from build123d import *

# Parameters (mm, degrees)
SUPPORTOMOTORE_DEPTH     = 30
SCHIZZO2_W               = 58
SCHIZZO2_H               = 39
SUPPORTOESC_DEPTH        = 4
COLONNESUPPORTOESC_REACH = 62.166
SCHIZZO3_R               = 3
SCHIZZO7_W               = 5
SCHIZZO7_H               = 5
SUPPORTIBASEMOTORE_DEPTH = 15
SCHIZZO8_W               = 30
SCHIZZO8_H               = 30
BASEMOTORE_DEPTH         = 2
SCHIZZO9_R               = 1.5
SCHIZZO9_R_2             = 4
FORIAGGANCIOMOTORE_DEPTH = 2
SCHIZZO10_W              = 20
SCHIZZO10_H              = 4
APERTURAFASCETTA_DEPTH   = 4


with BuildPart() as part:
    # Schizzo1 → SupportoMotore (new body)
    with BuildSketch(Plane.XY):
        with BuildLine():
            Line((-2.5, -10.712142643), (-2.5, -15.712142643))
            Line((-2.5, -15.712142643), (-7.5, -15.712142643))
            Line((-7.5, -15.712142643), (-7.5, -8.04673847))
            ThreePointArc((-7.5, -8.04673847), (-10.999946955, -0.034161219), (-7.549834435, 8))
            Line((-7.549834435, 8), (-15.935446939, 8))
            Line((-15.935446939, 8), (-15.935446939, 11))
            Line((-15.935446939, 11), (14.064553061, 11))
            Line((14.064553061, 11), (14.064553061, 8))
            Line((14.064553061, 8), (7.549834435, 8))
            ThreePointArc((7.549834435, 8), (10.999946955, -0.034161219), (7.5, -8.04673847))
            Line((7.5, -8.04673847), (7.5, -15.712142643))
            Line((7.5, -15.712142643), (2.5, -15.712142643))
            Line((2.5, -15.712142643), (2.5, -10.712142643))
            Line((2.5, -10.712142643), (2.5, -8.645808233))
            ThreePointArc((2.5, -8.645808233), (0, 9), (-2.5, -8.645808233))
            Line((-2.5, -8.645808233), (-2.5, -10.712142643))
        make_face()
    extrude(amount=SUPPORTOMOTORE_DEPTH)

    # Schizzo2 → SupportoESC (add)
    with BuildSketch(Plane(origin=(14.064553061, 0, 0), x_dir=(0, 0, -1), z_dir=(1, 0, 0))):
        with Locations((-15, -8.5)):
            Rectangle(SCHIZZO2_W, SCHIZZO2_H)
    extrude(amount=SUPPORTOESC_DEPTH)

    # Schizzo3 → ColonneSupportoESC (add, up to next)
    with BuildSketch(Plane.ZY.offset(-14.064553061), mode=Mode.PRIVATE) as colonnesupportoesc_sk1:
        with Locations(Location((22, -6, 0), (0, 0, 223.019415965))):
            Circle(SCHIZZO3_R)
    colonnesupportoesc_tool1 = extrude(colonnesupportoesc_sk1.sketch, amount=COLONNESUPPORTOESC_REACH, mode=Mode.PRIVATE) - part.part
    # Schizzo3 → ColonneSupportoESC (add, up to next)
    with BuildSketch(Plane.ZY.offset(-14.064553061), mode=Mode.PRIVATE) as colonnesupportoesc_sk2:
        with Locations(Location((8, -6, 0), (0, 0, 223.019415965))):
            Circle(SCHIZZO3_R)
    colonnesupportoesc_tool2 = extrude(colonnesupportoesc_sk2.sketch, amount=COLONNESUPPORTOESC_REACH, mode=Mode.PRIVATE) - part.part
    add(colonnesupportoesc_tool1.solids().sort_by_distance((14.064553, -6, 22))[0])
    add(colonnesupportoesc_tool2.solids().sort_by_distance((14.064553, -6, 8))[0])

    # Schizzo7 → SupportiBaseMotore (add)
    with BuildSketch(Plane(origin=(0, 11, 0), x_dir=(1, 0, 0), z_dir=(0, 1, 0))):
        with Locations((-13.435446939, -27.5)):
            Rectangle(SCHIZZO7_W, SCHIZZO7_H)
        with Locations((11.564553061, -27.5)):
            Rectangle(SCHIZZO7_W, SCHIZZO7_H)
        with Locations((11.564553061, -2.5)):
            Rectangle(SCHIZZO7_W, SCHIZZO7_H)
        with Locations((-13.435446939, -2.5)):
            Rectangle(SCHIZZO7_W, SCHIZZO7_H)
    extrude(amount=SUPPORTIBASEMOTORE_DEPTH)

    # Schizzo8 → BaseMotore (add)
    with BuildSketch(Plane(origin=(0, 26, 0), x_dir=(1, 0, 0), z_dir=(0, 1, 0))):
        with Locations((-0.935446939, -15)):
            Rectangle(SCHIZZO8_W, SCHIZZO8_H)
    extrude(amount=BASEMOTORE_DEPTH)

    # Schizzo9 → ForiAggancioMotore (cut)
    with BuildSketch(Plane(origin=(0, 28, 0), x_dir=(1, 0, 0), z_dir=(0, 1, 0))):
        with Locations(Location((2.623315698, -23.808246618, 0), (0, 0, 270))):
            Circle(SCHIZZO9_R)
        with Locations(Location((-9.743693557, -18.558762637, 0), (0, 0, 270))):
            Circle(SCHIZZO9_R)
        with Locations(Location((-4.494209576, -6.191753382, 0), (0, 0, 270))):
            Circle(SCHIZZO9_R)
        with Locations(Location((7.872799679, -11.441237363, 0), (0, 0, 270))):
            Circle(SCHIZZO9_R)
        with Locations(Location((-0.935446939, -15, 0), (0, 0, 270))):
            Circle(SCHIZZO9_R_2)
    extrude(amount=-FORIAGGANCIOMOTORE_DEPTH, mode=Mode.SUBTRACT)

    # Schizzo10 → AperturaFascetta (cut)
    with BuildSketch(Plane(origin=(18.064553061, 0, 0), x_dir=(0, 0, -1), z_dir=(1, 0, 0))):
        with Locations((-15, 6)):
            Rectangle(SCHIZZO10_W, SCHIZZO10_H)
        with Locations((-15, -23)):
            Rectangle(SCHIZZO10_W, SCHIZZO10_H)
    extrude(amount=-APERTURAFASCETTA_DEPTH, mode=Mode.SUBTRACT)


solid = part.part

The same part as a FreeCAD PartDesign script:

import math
import FreeCAD as App
import Part
import Sketcher

V = App.Vector

doc = App.newDocument("Part")
params = doc.addObject("Spreadsheet::Sheet", "Params")
for row, (alias, value) in enumerate([
    ("sketch1_radius", "9 mm"),
    ("sketch1_radius2", "11 mm"),
    ("sketch1_width", "5 mm"),
    ("sketch1_width2", "30 mm"),
    ("sketch1_height", "3 mm"),
    ("pad1_length", "30 mm"),
    ("sketch2_width", "39 mm"),
    ("sketch2_height", "58 mm"),
    ("pad2_length", "4 mm"),
    ("sketch3_diameter", "6 mm"),
    ("sketch4_diameter", "6 mm"),
    ("sketch5_width", "5 mm"),
    ("pad5_length", "15 mm"),
    ("sketch6_width", "30 mm"),
    ("pad6_length", "2 mm"),
    ("sketch7_diameter", "3 mm"),
    ("sketch7_diameter2", "8 mm"),
    ("pocket1_length", "2 mm"),
    ("sketch8_width", "4 mm"),
    ("sketch8_height", "20 mm"),
    ("pocket2_length", "4 mm"),
], start=1):
    params.set(f"A{row}", alias)
    params.set(f"B{row}", "=" + value)
    params.setAlias(f"B{row}", alias)

body = doc.addObject("PartDesign::Body", "Body")

sketch1 = doc.addObject("Sketcher::SketchObject", "Sketch")
body.addObject(sketch1)
sketch1.AttachmentSupport = (doc.XY_Plane, [""])
sketch1.MapMode = "FlatFace"
sketch1.addGeometry([
    Part.LineSegment(V(-7.5, -15.7, 0), V(-2.5, -15.7, 0)),
    Part.LineSegment(V(-2.5, -15.7, 0), V(-2.5, -8.6, 0)),
    Part.ArcOfCircle(Part.Circle(V(0, 0, 0), V(0, 0, 1), 9), math.radians(-74), math.radians(254)),
    Part.LineSegment(V(2.5, -8.6, 0), V(2.5, -15.7, 0)),
    Part.LineSegment(V(2.5, -15.7, 0), V(7.5, -15.7, 0)),
    Part.LineSegment(V(7.5, -15.7, 0), V(7.5, -8, 0)),
    Part.ArcOfCircle(Part.Circle(V(0, 0, 0), V(0, 0, 1), 11), math.radians(-47), math.radians(47)),
    Part.LineSegment(V(7.5, 8, 0), V(14.1, 8, 0)),
    Part.LineSegment(V(14.1, 8, 0), V(14.1, 11, 0)),
    Part.LineSegment(V(14.1, 11, 0), V(-15.9, 11, 0)),
    Part.LineSegment(V(-15.9, 11, 0), V(-15.9, 8, 0)),
    Part.LineSegment(V(-15.9, 8, 0), V(-7.5, 8, 0)),
    Part.ArcOfCircle(Part.Circle(V(0, 0, 0), V(0, 0, 1), 11), math.radians(133), math.radians(227)),
    Part.LineSegment(V(-7.5, -8, 0), V(-7.5, -15.7, 0)),
], False)
sketch1.addConstraint([
    Sketcher.Constraint("Coincident", 0, 2, 1, 1),
    Sketcher.Constraint("Coincident", 1, 2, 2, 2),
    Sketcher.Constraint("Coincident", 2, 1, 3, 1),
    Sketcher.Constraint("Coincident", 3, 2, 4, 1),
    Sketcher.Constraint("Coincident", 4, 2, 5, 1),
    Sketcher.Constraint("Coincident", 5, 2, 6, 1),
    Sketcher.Constraint("Coincident", 6, 2, 7, 1),
    Sketcher.Constraint("Coincident", 7, 2, 8, 1),
    Sketcher.Constraint("Coincident", 8, 2, 9, 1),
    Sketcher.Constraint("Coincident", 9, 2, 10, 1),
    Sketcher.Constraint("Coincident", 10, 2, 11, 1),
    Sketcher.Constraint("Coincident", 11, 2, 12, 1),
    Sketcher.Constraint("Coincident", 12, 2, 13, 1),
    Sketcher.Constraint("Coincident", 13, 2, 0, 1),
    Sketcher.Constraint("Horizontal", 0),
    Sketcher.Constraint("Vertical", 1),
    Sketcher.Constraint("Vertical", 3),
    Sketcher.Constraint("Horizontal", 4),
    Sketcher.Constraint("Vertical", 5),
    Sketcher.Constraint("Horizontal", 7),
    Sketcher.Constraint("Vertical", 8),
    Sketcher.Constraint("Horizontal", 9),
    Sketcher.Constraint("Vertical", 10),
    Sketcher.Constraint("Horizontal", 11),
    Sketcher.Constraint("Vertical", 13),
    Sketcher.Constraint("Coincident", 2, 3, -1, 1),
    Sketcher.Constraint("Coincident", 6, 3, -1, 1),
    Sketcher.Constraint("Coincident", 12, 3, -1, 1),
    Sketcher.Constraint("Equal", 6, 12),
    Sketcher.Constraint("Symmetric", 0, 2, 3, 2, -2),
    Sketcher.Constraint("Horizontal", 7, 2, 10, 2),
    Sketcher.Constraint("Horizontal", 5, 2, 12, 2),
    Sketcher.Constraint("Radius", 2, 9.0),
    Sketcher.Constraint("Radius", 6, 11.0),
    Sketcher.Constraint("DistanceX", 0, 1, 0, 2, 5.0),
    Sketcher.Constraint("DistanceX", 9, 2, 9, 1, 30.0),
    Sketcher.Constraint("DistanceY", 8, 1, 8, 2, 3.0),
    Sketcher.Constraint("DistanceY", -1, 1, 6, 2, 8.0),
    Sketcher.Constraint("DistanceX", 1, 2, 2, 1, 5.0),
    Sketcher.Constraint("DistanceX", 7, 1, 7, 2, 6.514719),
    Sketcher.Constraint("DistanceY", 1, 1, 1, 2, 7.066334),
])
sketch1.setExpression("Constraints[32]", "Params.sketch1_radius")
sketch1.setExpression("Constraints[33]", "Params.sketch1_radius2")
sketch1.setExpression("Constraints[34]", "Params.sketch1_width")
sketch1.setExpression("Constraints[35]", "Params.sketch1_width2")
sketch1.setExpression("Constraints[36]", "Params.sketch1_height")
pad1 = doc.addObject("PartDesign::Pad", "Pad")
body.addObject(pad1)
pad1.Profile = sketch1
pad1.setExpression("Length", "Params.pad1_length")

sketch2 = doc.addObject("Sketcher::SketchObject", "Sketch001")
body.addObject(sketch2)
sketch2.AttachmentSupport = (doc.YZ_Plane, [""])
sketch2.MapMode = "FlatFace"
sketch2.AttachmentOffset = App.Placement(V(0, 0, 14.064553), App.Rotation())
sketch2.addGeometry([
    Part.LineSegment(V(11, 44, 0), V(-28, 44, 0)),
    Part.LineSegment(V(-28, 44, 0), V(-28, -14, 0)),
    Part.LineSegment(V(-28, -14, 0), V(11, -14, 0)),
    Part.LineSegment(V(11, -14, 0), V(11, 44, 0)),
], False)
sketch2.addConstraint([
    Sketcher.Constraint("Coincident", 0, 2, 1, 1),
    Sketcher.Constraint("Coincident", 1, 2, 2, 1),
    Sketcher.Constraint("Coincident", 2, 2, 3, 1),
    Sketcher.Constraint("Coincident", 3, 2, 0, 1),
    Sketcher.Constraint("Horizontal", 0),
    Sketcher.Constraint("Vertical", 1),
    Sketcher.Constraint("Horizontal", 2),
    Sketcher.Constraint("Vertical", 3),
    Sketcher.Constraint("DistanceX", 0, 2, 0, 1, 39.0),
    Sketcher.Constraint("DistanceY", 1, 2, 1, 1, 58.0),
    Sketcher.Constraint("DistanceX", 0, 2, -1, 1, 28.0),
    Sketcher.Constraint("DistanceY", -1, 1, 0, 2, 44.0),
])
sketch2.setExpression("Constraints[8]", "Params.sketch2_width")
sketch2.setExpression("Constraints[9]", "Params.sketch2_height")
pad2 = doc.addObject("PartDesign::Pad", "Pad001")
body.addObject(pad2)
pad2.Profile = sketch2
pad2.setExpression("Length", "Params.pad2_length")

sketch3 = doc.addObject("Sketcher::SketchObject", "Sketch002")
body.addObject(sketch3)
sketch3.AttachmentSupport = (doc.YZ_Plane, [""])
sketch3.MapMode = "FlatFace"
sketch3.AttachmentOffset = App.Placement(V(0, 0, 14.064553), App.Rotation())
sketch3.addGeometry(Part.Circle(V(-6, 22, 0), V(0, 0, 1), 3), False)
sketch3.addConstraint([
    Sketcher.Constraint("Diameter", 0, 6.0),
    Sketcher.Constraint("DistanceX", 0, 3, -1, 1, 6.0),
    Sketcher.Constraint("DistanceY", -1, 1, 0, 3, 22.0),
])
sketch3.setExpression("Constraints[0]", "Params.sketch3_diameter")
pad3 = doc.addObject("PartDesign::Pad", "Pad002")
body.addObject(pad3)
pad3.Profile = sketch3
pad3.Type = "UpToFirst"
pad3.Reversed = True

sketch4 = doc.addObject("Sketcher::SketchObject", "Sketch003")
body.addObject(sketch4)
sketch4.AttachmentSupport = (doc.YZ_Plane, [""])
sketch4.MapMode = "FlatFace"
sketch4.AttachmentOffset = App.Placement(V(0, 0, 14.064553), App.Rotation())
sketch4.addGeometry(Part.Circle(V(-6, 8, 0), V(0, 0, 1), 3), False)
sketch4.addConstraint([
    Sketcher.Constraint("Diameter", 0, 6.0),
    Sketcher.Constraint("DistanceX", 0, 3, -1, 1, 6.0),
    Sketcher.Constraint("DistanceY", -1, 1, 0, 3, 8.0),
])
sketch4.setExpression("Constraints[0]", "Params.sketch4_diameter")
pad4 = doc.addObject("PartDesign::Pad", "Pad003")
body.addObject(pad4)
pad4.Profile = sketch4
pad4.Type = "UpToFirst"
pad4.Reversed = True

sketch5 = doc.addObject("Sketcher::SketchObject", "Sketch004")
body.addObject(sketch5)
sketch5.AttachmentSupport = (doc.XZ_Plane, [""])
sketch5.MapMode = "FlatFace"
sketch5.AttachmentOffset = App.Placement(V(0, 0, -11), App.Rotation())
sketch5.addGeometry([
    Part.LineSegment(V(-16, 25, 0), V(-16, 30, 0)),
    Part.LineSegment(V(-16, 30, 0), V(-11, 30, 0)),
    Part.LineSegment(V(-11, 30, 0), V(-11, 25, 0)),
    Part.LineSegment(V(-11, 25, 0), V(-16, 25, 0)),
    Part.LineSegment(V(9, 25, 0), V(9, 30, 0)),
    Part.LineSegment(V(9, 30, 0), V(14, 30, 0)),
    Part.LineSegment(V(14, 30, 0), V(14, 25, 0)),
    Part.LineSegment(V(14, 25, 0), V(9, 25, 0)),
    Part.LineSegment(V(9, 0, 0), V(9, 5, 0)),
    Part.LineSegment(V(9, 5, 0), V(14, 5, 0)),
    Part.LineSegment(V(14, 5, 0), V(14, 0, 0)),
    Part.LineSegment(V(14, 0, 0), V(9, 0, 0)),
    Part.LineSegment(V(-16, 0, 0), V(-16, 5, 0)),
    Part.LineSegment(V(-16, 5, 0), V(-11, 5, 0)),
    Part.LineSegment(V(-11, 5, 0), V(-11, 0, 0)),
    Part.LineSegment(V(-11, 0, 0), V(-16, 0, 0)),
], False)
sketch5.addConstraint([
    Sketcher.Constraint("Coincident", 0, 2, 1, 1),
    Sketcher.Constraint("Coincident", 1, 2, 2, 1),
    Sketcher.Constraint("Coincident", 2, 2, 3, 1),
    Sketcher.Constraint("Coincident", 3, 2, 0, 1),
    Sketcher.Constraint("Coincident", 4, 2, 5, 1),
    Sketcher.Constraint("Coincident", 5, 2, 6, 1),
    Sketcher.Constraint("Coincident", 6, 2, 7, 1),
    Sketcher.Constraint("Coincident", 7, 2, 4, 1),
    Sketcher.Constraint("Coincident", 8, 2, 9, 1),
    Sketcher.Constraint("Coincident", 9, 2, 10, 1),
    Sketcher.Constraint("Coincident", 10, 2, 11, 1),
    Sketcher.Constraint("Coincident", 11, 2, 8, 1),
    Sketcher.Constraint("Coincident", 12, 2, 13, 1),
    Sketcher.Constraint("Coincident", 13, 2, 14, 1),
    Sketcher.Constraint("Coincident", 14, 2, 15, 1),
    Sketcher.Constraint("Coincident", 15, 2, 12, 1),
    Sketcher.Constraint("Vertical", 0),
    Sketcher.Constraint("Horizontal", 1),
    Sketcher.Constraint("Vertical", 2),
    Sketcher.Constraint("Horizontal", 3),
    Sketcher.Constraint("Vertical", 4),
    Sketcher.Constraint("Horizontal", 5),
    Sketcher.Constraint("Vertical", 6),
    Sketcher.Constraint("Horizontal", 7),
    Sketcher.Constraint("Vertical", 8),
    Sketcher.Constraint("Horizontal", 9),
    Sketcher.Constraint("Vertical", 10),
    Sketcher.Constraint("Horizontal", 11),
    Sketcher.Constraint("Vertical", 12),
    Sketcher.Constraint("Horizontal", 13),
    Sketcher.Constraint("Vertical", 14),
    Sketcher.Constraint("Horizontal", 15),
    Sketcher.Constraint("PointOnObject", 10, 2, -1),
    Sketcher.Constraint("PointOnObject", 14, 2, -1),
    Sketcher.Constraint("Horizontal", 1, 2, 4, 2),
    Sketcher.Constraint("Horizontal", 3, 2, 6, 2),
    Sketcher.Constraint("Horizontal", 9, 2, 12, 2),
    Sketcher.Constraint("Vertical", 7, 2, 8, 2),
    Sketcher.Constraint("Vertical", 6, 2, 9, 2),
    Sketcher.Constraint("Vertical", 3, 2, 12, 2),
    Sketcher.Constraint("Vertical", 2, 2, 13, 2),
    Sketcher.Constraint("Equal", 3, 5),
    Sketcher.Constraint("Equal", 15, 0),
    Sketcher.Constraint("Equal", 6, 8),
    Sketcher.Constraint("DistanceX", 1, 1, 1, 2, 5.0),
    Sketcher.Constraint("DistanceY", -1, 1, 0, 2, 30.0),
    Sketcher.Constraint("DistanceX", 1, 2, 4, 2, 20.0),
    Sketcher.Constraint("DistanceX", 0, 2, -1, 1, 15.935447),
])
sketch5.setExpression("Constraints[44]", "Params.sketch5_width")
pad5 = doc.addObject("PartDesign::Pad", "Pad004")
body.addObject(pad5)
pad5.Profile = sketch5
pad5.setExpression("Length", "Params.pad5_length")
pad5.Reversed = True

sketch6 = doc.addObject("Sketcher::SketchObject", "Sketch005")
body.addObject(sketch6)
sketch6.AttachmentSupport = (doc.XZ_Plane, [""])
sketch6.MapMode = "FlatFace"
sketch6.AttachmentOffset = App.Placement(V(0, 0, -26), App.Rotation())
sketch6.addGeometry([
    Part.LineSegment(V(-16, 0, 0), V(-16, 30, 0)),
    Part.LineSegment(V(-16, 30, 0), V(14, 30, 0)),
    Part.LineSegment(V(14, 30, 0), V(14, 0, 0)),
    Part.LineSegment(V(14, 0, 0), V(-16, 0, 0)),
], False)
sketch6.addConstraint([
    Sketcher.Constraint("Coincident", 0, 2, 1, 1),
    Sketcher.Constraint("Coincident", 1, 2, 2, 1),
    Sketcher.Constraint("Coincident", 2, 2, 3, 1),
    Sketcher.Constraint("Coincident", 3, 2, 0, 1),
    Sketcher.Constraint("Vertical", 0),
    Sketcher.Constraint("Horizontal", 1),
    Sketcher.Constraint("Vertical", 2),
    Sketcher.Constraint("Horizontal", 3),
    Sketcher.Constraint("PointOnObject", 2, 2, -1),
    Sketcher.Constraint("Equal", 3, 0),
    Sketcher.Constraint("DistanceX", 1, 1, 1, 2, 30.0),
    Sketcher.Constraint("DistanceX", 0, 2, -1, 1, 15.935447),
])
sketch6.setExpression("Constraints[10]", "Params.sketch6_width")
pad6 = doc.addObject("PartDesign::Pad", "Pad005")
body.addObject(pad6)
pad6.Profile = sketch6
pad6.setExpression("Length", "Params.pad6_length")
pad6.Reversed = True

sketch7 = doc.addObject("Sketcher::SketchObject", "Sketch006")
body.addObject(sketch7)
sketch7.AttachmentSupport = (doc.XZ_Plane, [""])
sketch7.MapMode = "FlatFace"
sketch7.AttachmentOffset = App.Placement(V(0, 0, -28), App.Rotation())
sketch7.addGeometry([
    Part.Circle(V(2.6, 23.8, 0), V(0, 0, 1), 1.5),
    Part.Circle(V(-9.7, 18.6, 0), V(0, 0, 1), 1.5),
    Part.Circle(V(-4.5, 6.2, 0), V(0, 0, 1), 1.5),
    Part.Circle(V(7.9, 11.4, 0), V(0, 0, 1), 1.5),
    Part.Circle(V(-0.9, 15, 0), V(0, 0, 1), 4),
], False)
sketch7.addConstraint([
    Sketcher.Constraint("Equal", 0, 1),
    Sketcher.Constraint("Equal", 1, 2),
    Sketcher.Constraint("Equal", 2, 3),
    Sketcher.Constraint("Diameter", 0, 3.0),
    Sketcher.Constraint("Diameter", 4, 8.0),
    Sketcher.Constraint("DistanceY", -1, 1, 4, 3, 15.0),
    Sketcher.Constraint("DistanceX", -1, 1, 3, 3, 7.8728),
    Sketcher.Constraint("DistanceX", 2, 3, -1, 1, 4.49421),
    Sketcher.Constraint("DistanceX", 1, 3, 0, 3, 12.367009),
    Sketcher.Constraint("DistanceY", 2, 3, 1, 3, 12.367009),
    Sketcher.Constraint("DistanceY", 3, 3, 0, 3, 12.367009),
    Sketcher.Constraint("DistanceX", -1, 1, 0, 3, 2.623316),
    Sketcher.Constraint("DistanceY", -1, 1, 0, 3, 23.808247),
    Sketcher.Constraint("DistanceY", -1, 1, 1, 3, 18.558763),
    Sketcher.Constraint("DistanceX", 4, 3, -1, 1, 0.935447),
])
sketch7.setExpression("Constraints[3]", "Params.sketch7_diameter")
sketch7.setExpression("Constraints[4]", "Params.sketch7_diameter2")
pocket1 = doc.addObject("PartDesign::Pocket", "Pocket")
body.addObject(pocket1)
pocket1.Profile = sketch7
pocket1.setExpression("Length", "Params.pocket1_length")
pocket1.Reversed = True

sketch8 = doc.addObject("Sketcher::SketchObject", "Sketch007")
body.addObject(sketch8)
sketch8.AttachmentSupport = (doc.YZ_Plane, [""])
sketch8.MapMode = "FlatFace"
sketch8.AttachmentOffset = App.Placement(V(0, 0, 18.064553), App.Rotation())
sketch8.addGeometry([
    Part.LineSegment(V(8, 25, 0), V(4, 25, 0)),
    Part.LineSegment(V(4, 25, 0), V(4, 5, 0)),
    Part.LineSegment(V(4, 5, 0), V(8, 5, 0)),
    Part.LineSegment(V(8, 5, 0), V(8, 25, 0)),
    Part.LineSegment(V(-21, 25, 0), V(-25, 25, 0)),
    Part.LineSegment(V(-25, 25, 0), V(-25, 5, 0)),
    Part.LineSegment(V(-25, 5, 0), V(-21, 5, 0)),
    Part.LineSegment(V(-21, 5, 0), V(-21, 25, 0)),
], False)
sketch8.addConstraint([
    Sketcher.Constraint("Coincident", 0, 2, 1, 1),
    Sketcher.Constraint("Coincident", 1, 2, 2, 1),
    Sketcher.Constraint("Coincident", 2, 2, 3, 1),
    Sketcher.Constraint("Coincident", 3, 2, 0, 1),
    Sketcher.Constraint("Coincident", 4, 2, 5, 1),
    Sketcher.Constraint("Coincident", 5, 2, 6, 1),
    Sketcher.Constraint("Coincident", 6, 2, 7, 1),
    Sketcher.Constraint("Coincident", 7, 2, 4, 1),
    Sketcher.Constraint("Horizontal", 0),
    Sketcher.Constraint("Vertical", 1),
    Sketcher.Constraint("Horizontal", 2),
    Sketcher.Constraint("Vertical", 3),
    Sketcher.Constraint("Horizontal", 4),
    Sketcher.Constraint("Vertical", 5),
    Sketcher.Constraint("Horizontal", 6),
    Sketcher.Constraint("Vertical", 7),
    Sketcher.Constraint("Horizontal", 3, 2, 4, 2),
    Sketcher.Constraint("Horizontal", 2, 2, 5, 2),
    Sketcher.Constraint("Equal", 2, 4),
    Sketcher.Constraint("DistanceX", 0, 2, 0, 1, 4.0),
    Sketcher.Constraint("DistanceY", 1, 2, 1, 1, 20.0),
    Sketcher.Constraint("DistanceX", -1, 1, 0, 2, 4.0),
    Sketcher.Constraint("DistanceY", -1, 1, 0, 2, 25.0),
    Sketcher.Constraint("DistanceX", 4, 2, -1, 1, 25.0),
])
sketch8.setExpression("Constraints[19]", "Params.sketch8_width")
sketch8.setExpression("Constraints[20]", "Params.sketch8_height")
pocket2 = doc.addObject("PartDesign::Pocket", "Pocket001")
body.addObject(pocket2)
pocket2.Profile = sketch8
pocket2.setExpression("Length", "Params.pocket2_length")

doc.recompute()
